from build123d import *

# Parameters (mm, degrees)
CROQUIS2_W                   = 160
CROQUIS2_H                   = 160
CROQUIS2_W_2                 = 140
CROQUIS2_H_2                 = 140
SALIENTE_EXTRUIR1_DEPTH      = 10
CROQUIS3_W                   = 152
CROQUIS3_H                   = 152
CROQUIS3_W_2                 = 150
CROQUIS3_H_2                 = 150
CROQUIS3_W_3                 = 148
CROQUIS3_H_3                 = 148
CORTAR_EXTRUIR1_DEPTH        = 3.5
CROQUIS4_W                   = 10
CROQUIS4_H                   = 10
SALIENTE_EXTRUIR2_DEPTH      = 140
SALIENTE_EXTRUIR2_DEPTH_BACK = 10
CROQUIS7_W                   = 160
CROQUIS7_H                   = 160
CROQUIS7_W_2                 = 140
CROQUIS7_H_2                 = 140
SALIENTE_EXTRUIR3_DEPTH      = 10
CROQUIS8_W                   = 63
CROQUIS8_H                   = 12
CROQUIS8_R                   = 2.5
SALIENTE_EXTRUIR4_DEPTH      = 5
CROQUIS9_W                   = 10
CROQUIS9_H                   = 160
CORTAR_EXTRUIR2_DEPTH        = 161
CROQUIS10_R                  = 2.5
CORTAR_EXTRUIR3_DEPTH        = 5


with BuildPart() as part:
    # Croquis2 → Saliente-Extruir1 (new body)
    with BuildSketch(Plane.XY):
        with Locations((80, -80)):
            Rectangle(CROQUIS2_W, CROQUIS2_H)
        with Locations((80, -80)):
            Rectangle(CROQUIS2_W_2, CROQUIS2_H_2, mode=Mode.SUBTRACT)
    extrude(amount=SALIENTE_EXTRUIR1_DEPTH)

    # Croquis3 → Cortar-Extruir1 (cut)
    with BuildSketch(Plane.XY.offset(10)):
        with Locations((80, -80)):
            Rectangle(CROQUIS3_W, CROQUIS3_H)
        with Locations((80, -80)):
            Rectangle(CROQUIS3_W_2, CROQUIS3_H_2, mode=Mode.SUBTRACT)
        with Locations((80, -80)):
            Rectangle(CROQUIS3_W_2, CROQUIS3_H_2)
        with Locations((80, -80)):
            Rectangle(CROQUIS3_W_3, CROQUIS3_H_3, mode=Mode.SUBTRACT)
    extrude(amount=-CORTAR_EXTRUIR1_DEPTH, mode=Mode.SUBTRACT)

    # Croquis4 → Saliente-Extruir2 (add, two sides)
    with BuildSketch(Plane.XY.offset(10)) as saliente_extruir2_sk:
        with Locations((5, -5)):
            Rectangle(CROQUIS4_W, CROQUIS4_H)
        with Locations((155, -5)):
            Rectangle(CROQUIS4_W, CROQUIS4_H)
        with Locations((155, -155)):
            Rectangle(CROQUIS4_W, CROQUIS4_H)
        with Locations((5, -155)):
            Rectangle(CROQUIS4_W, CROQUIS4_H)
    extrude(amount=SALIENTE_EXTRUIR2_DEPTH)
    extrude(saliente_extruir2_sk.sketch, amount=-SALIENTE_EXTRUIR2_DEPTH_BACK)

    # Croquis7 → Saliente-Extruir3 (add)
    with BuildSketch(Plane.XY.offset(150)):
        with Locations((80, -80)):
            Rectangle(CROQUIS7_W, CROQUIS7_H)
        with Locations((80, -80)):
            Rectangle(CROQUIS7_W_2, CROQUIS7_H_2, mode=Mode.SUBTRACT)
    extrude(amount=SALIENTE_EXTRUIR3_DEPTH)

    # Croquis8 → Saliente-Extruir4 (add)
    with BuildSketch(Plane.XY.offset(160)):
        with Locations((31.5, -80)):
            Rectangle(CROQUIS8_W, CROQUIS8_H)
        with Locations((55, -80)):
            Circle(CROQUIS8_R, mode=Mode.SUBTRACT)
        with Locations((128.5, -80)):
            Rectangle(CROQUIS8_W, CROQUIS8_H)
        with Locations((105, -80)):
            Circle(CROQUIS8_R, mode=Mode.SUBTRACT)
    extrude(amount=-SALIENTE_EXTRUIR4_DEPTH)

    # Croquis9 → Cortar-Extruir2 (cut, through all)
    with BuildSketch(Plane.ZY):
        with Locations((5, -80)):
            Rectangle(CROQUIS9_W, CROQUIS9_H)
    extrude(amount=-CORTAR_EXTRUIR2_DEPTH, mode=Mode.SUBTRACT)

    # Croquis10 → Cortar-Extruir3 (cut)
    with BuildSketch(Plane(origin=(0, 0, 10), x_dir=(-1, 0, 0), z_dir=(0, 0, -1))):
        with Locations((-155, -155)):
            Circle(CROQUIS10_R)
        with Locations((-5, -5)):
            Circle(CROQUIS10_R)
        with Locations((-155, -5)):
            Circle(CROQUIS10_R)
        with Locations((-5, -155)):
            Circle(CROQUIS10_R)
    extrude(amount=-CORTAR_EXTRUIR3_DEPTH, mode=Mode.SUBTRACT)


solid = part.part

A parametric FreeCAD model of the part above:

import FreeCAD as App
import Part
import Sketcher
Q = App.Units.Quantity

doc = App.newDocument("Part")
body = doc.addObject("PartDesign::Body", "Body")

sketch1 = doc.addObject("Sketcher::SketchObject", "Sketch")
body.addObject(sketch1)
sketch1.AttachmentSupport = (doc.XY_Plane, [""])
sketch1.MapMode = "FlatFace"
sketch1.addGeometry([
    Part.LineSegment(App.Vector(0, 0, 0), App.Vector(0, -160, 0)),
    Part.LineSegment(App.Vector(0, -160, 0), App.Vector(160, -160, 0)),
    Part.LineSegment(App.Vector(160, -160, 0), App.Vector(160, 0, 0)),
    Part.LineSegment(App.Vector(160, 0, 0), App.Vector(0, 0, 0)),
    Part.LineSegment(App.Vector(150, -150, 0), App.Vector(10, -150, 0)),
    Part.LineSegment(App.Vector(10, -150, 0), App.Vector(10, -10, 0)),
    Part.LineSegment(App.Vector(10, -10, 0), App.Vector(150, -10, 0)),
    Part.LineSegment(App.Vector(150, -10, 0), App.Vector(150, -150, 0)),
], False)
sketch1.addConstraint([
    Sketcher.Constraint("Coincident", 0, 2, 1, 1),
    Sketcher.Constraint("Coincident", 1, 2, 2, 1),
    Sketcher.Constraint("Coincident", 2, 2, 3, 1),
    Sketcher.Constraint("Coincident", 3, 2, 0, 1),
    Sketcher.Constraint("Coincident", 4, 2, 5, 1),
    Sketcher.Constraint("Coincident", 5, 2, 6, 1),
    Sketcher.Constraint("Coincident", 6, 2, 7, 1),
    Sketcher.Constraint("Coincident", 7, 2, 4, 1),
    Sketcher.Constraint("Vertical", 0),
    Sketcher.Constraint("Horizontal", 1),
    Sketcher.Constraint("Vertical", 2),
    Sketcher.Constraint("Horizontal", 3),
    Sketcher.Constraint("Horizontal", 4),
    Sketcher.Constraint("Vertical", 5),
    Sketcher.Constraint("Horizontal", 6),
    Sketcher.Constraint("Vertical", 7),
    Sketcher.Constraint("Coincident", 3, 2, -1, 1),
    Sketcher.Constraint("Equal", 3, 0),
    Sketcher.Constraint("Equal", 6, 5),
    Sketcher.Constraint("DistanceX", 1, 1, 1, 2, Q("160 mm")),
    Sketcher.Constraint("DistanceX", 4, 2, 4, 1, Q("140 mm")),
    Sketcher.Constraint("DistanceX", -1, 1, 4, 2, Q("10 mm")),
    Sketcher.Constraint("DistanceY", 4, 2, -1, 1, Q("150 mm")),
])
pad1 = doc.addObject("PartDesign::Pad", "Pad")
body.addObject(pad1)
pad1.Profile = sketch1
pad1.Length = 10

sketch2 = doc.addObject("Sketcher::SketchObject", "Sketch001")
body.addObject(sketch2)
sketch2.AttachmentSupport = (doc.XY_Plane, [""])
sketch2.MapMode = "FlatFace"
sketch2.AttachmentOffset = App.Placement(App.Vector(0, 0, 10), App.Rotation())
sketch2.addGeometry([
    Part.LineSegment(App.Vector(4, -4, 0), App.Vector(4, -156, 0)),
    Part.LineSegment(App.Vector(4, -156, 0), App.Vector(156, -156, 0)),
    Part.LineSegment(App.Vector(156, -156, 0), App.Vector(156, -4, 0)),
    Part.LineSegment(App.Vector(156, -4, 0), App.Vector(4, -4, 0)),
    Part.LineSegment(App.Vector(154, -154, 0), App.Vector(6, -154, 0)),
    Part.LineSegment(App.Vector(6, -154, 0), App.Vector(6, -6, 0)),
    Part.LineSegment(App.Vector(6, -6, 0), App.Vector(154, -6, 0)),
    Part.LineSegment(App.Vector(154, -6, 0), App.Vector(154, -154, 0)),
], False)
sketch2.addConstraint([
    Sketcher.Constraint("Coincident", 0, 2, 1, 1),
    Sketcher.Constraint("Coincident", 1, 2, 2, 1),
    Sketcher.Constraint("Coincident", 2, 2, 3, 1),
    Sketcher.Constraint("Coincident", 3, 2, 0, 1),
    Sketcher.Constraint("Coincident", 4, 2, 5, 1),
    Sketcher.Constraint("Coincident", 5, 2, 6, 1),
    Sketcher.Constraint("Coincident", 6, 2, 7, 1),
    Sketcher.Constraint("Coincident", 7, 2, 4, 1),
    Sketcher.Constraint("Vertical", 0),
    Sketcher.Constraint("Horizontal", 1),
    Sketcher.Constraint("Vertical", 2),
    Sketcher.Constraint("Horizontal", 3),
    Sketcher.Constraint("Horizontal", 4),
    Sketcher.Constraint("Vertical", 5),
    Sketcher.Constraint("Horizontal", 6),
    Sketcher.Constraint("Vertical", 7),
    Sketcher.Constraint("Equal", 3, 0),
    Sketcher.Constraint("Equal", 6, 5),
    Sketcher.Constraint("DistanceX", 1, 1, 1, 2, Q("152 mm")),
    Sketcher.Constraint("DistanceX", 4, 2, 4, 1, Q("148 mm")),
    Sketcher.Constraint("DistanceX", -1, 1, 0, 2, Q("4 mm")),
    Sketcher.Constraint("DistanceY", 0, 2, -1, 1, Q("156 mm")),
    Sketcher.Constraint("DistanceX", -1, 1, 4, 2, Q("6 mm")),
    Sketcher.Constraint("DistanceY", 4, 2, -1, 1, Q("154 mm")),
])
pocket1 = doc.addObject("PartDesign::Pocket", "Pocket")
body.addObject(pocket1)
pocket1.Profile = sketch2
pocket1.Length = 3.5

sketch3 = doc.addObject("Sketcher::SketchObject", "Sketch002")
body.addObject(sketch3)
sketch3.AttachmentSupport = (doc.XY_Plane, [""])
sketch3.MapMode = "FlatFace"
sketch3.AttachmentOffset = App.Placement(App.Vector(0, 0, 10), App.Rotation())
sketch3.addGeometry([
    Part.LineSegment(App.Vector(0, 0, 0), App.Vector(0, -10, 0)),
    Part.LineSegment(App.Vector(0, -10, 0), App.Vector(10, -10, 0)),
    Part.LineSegment(App.Vector(10, -10, 0), App.Vector(10, 0, 0)),
    Part.LineSegment(App.Vector(10, 0, 0), App.Vector(0, 0, 0)),
    Part.LineSegment(App.Vector(150, 0, 0), App.Vector(150, -10, 0)),
    Part.LineSegment(App.Vector(150, -10, 0), App.Vector(160, -10, 0)),
    Part.LineSegment(App.Vector(160, -10, 0), App.Vector(160, 0, 0)),
    Part.LineSegment(App.Vector(160, 0, 0), App.Vector(150, 0, 0)),
    Part.LineSegment(App.Vector(150, -150, 0), App.Vector(150, -160, 0)),
    Part.LineSegment(App.Vector(150, -160, 0), App.Vector(160, -160, 0)),
    Part.LineSegment(App.Vector(160, -160, 0), App.Vector(160, -150, 0)),
    Part.LineSegment(App.Vector(160, -150, 0), App.Vector(150, -150, 0)),
    Part.LineSegment(App.Vector(0, -150, 0), App.Vector(0, -160, 0)),
    Part.LineSegment(App.Vector(0, -160, 0), App.Vector(10, -160, 0)),
    Part.LineSegment(App.Vector(10, -160, 0), App.Vector(10, -150, 0)),
    Part.LineSegment(App.Vector(10, -150, 0), App.Vector(0, -150, 0)),
], False)
sketch3.addConstraint([
    Sketcher.Constraint("Coincident", 0, 2, 1, 1),
    Sketcher.Constraint("Coincident", 1, 2, 2, 1),
    Sketcher.Constraint("Coincident", 2, 2, 3, 1),
    Sketcher.Constraint("Coincident", 3, 2, 0, 1),
    Sketcher.Constraint("Coincident", 4, 2, 5, 1),
    Sketcher.Constraint("Coincident", 5, 2, 6, 1),
    Sketcher.Constraint("Coincident", 6, 2, 7, 1),
    Sketcher.Constraint("Coincident", 7, 2, 4, 1),
    Sketcher.Constraint("Coincident", 8, 2, 9, 1),
    Sketcher.Constraint("Coincident", 9, 2, 10, 1),
    Sketcher.Constraint("Coincident", 10, 2, 11, 1),
    Sketcher.Constraint("Coincident", 11, 2, 8, 1),
    Sketcher.Constraint("Coincident", 12, 2, 13, 1),
    Sketcher.Constraint("Coincident", 13, 2, 14, 1),
    Sketcher.Constraint("Coincident", 14, 2, 15, 1),
    Sketcher.Constraint("Coincident", 15, 2, 12, 1),
    Sketcher.Constraint("Vertical", 0),
    Sketcher.Constraint("Horizontal", 1),
    Sketcher.Constraint("Vertical", 2),
    Sketcher.Constraint("Horizontal", 3),
    Sketcher.Constraint("Vertical", 4),
    Sketcher.Constraint("Horizontal", 5),
    Sketcher.Constraint("Vertical", 6),
    Sketcher.Constraint("Horizontal", 7),
    Sketcher.Constraint("Vertical", 8),
    Sketcher.Constraint("Horizontal", 9),
    Sketcher.Constraint("Vertical", 10),
    Sketcher.Constraint("Horizontal", 11),
    Sketcher.Constraint("Vertical", 12),
    Sketcher.Constraint("Horizontal", 13),
    Sketcher.Constraint("Vertical", 14),
    Sketcher.Constraint("Horizontal", 15),
    Sketcher.Constraint("Coincident", 3, 2, -1, 1),
    Sketcher.Constraint("PointOnObject", 6, 2, -1),
    Sketcher.Constraint("PointOnObject", 12, 2, -2),
    Sketcher.Constraint("Horizontal", 1, 2, 4, 2),
    Sketcher.Constraint("Horizontal", 9, 2, 12, 2),
    Sketcher.Constraint("Horizontal", 11, 2, 14, 2),
    Sketcher.Constraint("Vertical", 7, 2, 8, 2),
    Sketcher.Constraint("Vertical", 6, 2, 9, 2),
    Sketcher.Constraint("Vertical", 2, 2, 13, 2),
    Sketcher.Constraint("Equal", 3, 5),
    Sketcher.Constraint("Equal", 15, 0),
    Sketcher.Constraint("Equal", 6, 8),
    Sketcher.Constraint("DistanceX", 1, 1, 1, 2, Q("10 mm")),
    Sketcher.Constraint("DistanceX", -1, 1, 4, 2, Q("150 mm")),
    Sketcher.Constraint("DistanceY", 8, 2, -1, 1, Q("160 mm")),
])
pad2 = doc.addObject("PartDesign::Pad", "Pad001")
body.addObject(pad2)
pad2.Profile = sketch3
pad2.Type = "TwoLengths"
pad2.Length = 140
pad2.Length2 = 10

sketch4 = doc.addObject("Sketcher::SketchObject", "Sketch003")
body.addObject(sketch4)
sketch4.AttachmentSupport = (doc.XY_Plane, [""])
sketch4.MapMode = "FlatFace"
sketch4.AttachmentOffset = App.Placement(App.Vector(0, 0, 150), App.Rotation())
sketch4.addGeometry([
    Part.LineSegment(App.Vector(0, 0, 0), App.Vector(0, -160, 0)),
    Part.LineSegment(App.Vector(0, -160, 0), App.Vector(160, -160, 0)),
    Part.LineSegment(App.Vector(160, -160, 0), App.Vector(160, 0, 0)),
    Part.LineSegment(App.Vector(160, 0, 0), App.Vector(0, 0, 0)),
    Part.LineSegment(App.Vector(150, -150, 0), App.Vector(10, -150, 0)),
    Part.LineSegment(App.Vector(10, -150, 0), App.Vector(10, -10, 0)),
    Part.LineSegment(App.Vector(10, -10, 0), App.Vector(150, -10, 0)),
    Part.LineSegment(App.Vector(150, -10, 0), App.Vector(150, -150, 0)),
], False)
sketch4.addConstraint([
    Sketcher.Constraint("Coincident", 0, 2, 1, 1),
    Sketcher.Constraint("Coincident", 1, 2, 2, 1),
    Sketcher.Constraint("Coincident", 2, 2, 3, 1),
    Sketcher.Constraint("Coincident", 3, 2, 0, 1),
    Sketcher.Constraint("Coincident", 4, 2, 5, 1),
    Sketcher.Constraint("Coincident", 5, 2, 6, 1),
    Sketcher.Constraint("Coincident", 6, 2, 7, 1),
    Sketcher.Constraint("Coincident", 7, 2, 4, 1),
    Sketcher.Constraint("Vertical", 0),
    Sketcher.Constraint("Horizontal", 1),
    Sketcher.Constraint("Vertical", 2),
    Sketcher.Constraint("Horizontal", 3),
    Sketcher.Constraint("Horizontal", 4),
    Sketcher.Constraint("Vertical", 5),
    Sketcher.Constraint("Horizontal", 6),
    Sketcher.Constraint("Vertical", 7),
    Sketcher.Constraint("Coincident", 3, 2, -1, 1),
    Sketcher.Constraint("Equal", 3, 0),
    Sketcher.Constraint("Equal", 6, 5),
    Sketcher.Constraint("DistanceX", 1, 1, 1, 2, Q("160 mm")),
    Sketcher.Constraint("DistanceX", 4, 2, 4, 1, Q("140 mm")),
    Sketcher.Constraint("DistanceX", -1, 1, 4, 2, Q("10 mm")),
    Sketcher.Constraint("DistanceY", 4, 2, -1, 1, Q("150 mm")),
])
pad3 = doc.addObject("PartDesign::Pad", "Pad002")
body.addObject(pad3)
pad3.Profile = sketch4
pad3.Length = 10

sketch5 = doc.addObject("Sketcher::SketchObject", "Sketch004")
body.addObject(sketch5)
sketch5.AttachmentSupport = (doc.XY_Plane, [""])
sketch5.MapMode = "FlatFace"
sketch5.AttachmentOffset = App.Placement(App.Vector(0, 0, 160), App.Rotation())
sketch5.addGeometry([
    Part.LineSegment(App.Vector(0, -74, 0), App.Vector(0, -86, 0)),
    Part.LineSegment(App.Vector(0, -86, 0), App.Vector(63, -86, 0)),
    Part.LineSegment(App.Vector(63, -86, 0), App.Vector(63, -74, 0)),
    Part.LineSegment(App.Vector(63, -74, 0), App.Vector(0, -74, 0)),
    Part.Circle(App.Vector(55, -80, 0), App.Vector(0, 0, 1), 2.5),
    Part.LineSegment(App.Vector(97, -74, 0), App.Vector(97, -86, 0)),
    Part.LineSegment(App.Vector(97, -86, 0), App.Vector(160, -86, 0)),
    Part.LineSegment(App.Vector(160, -86, 0), App.Vector(160, -74, 0)),
    Part.LineSegment(App.Vector(160, -74, 0), App.Vector(97, -74, 0)),
    Part.Circle(App.Vector(105, -80, 0), App.Vector(0, 0, 1), 2.5),
], False)
sketch5.addConstraint([
    Sketcher.Constraint("Coincident", 0, 2, 1, 1),
    Sketcher.Constraint("Coincident", 1, 2, 2, 1),
    Sketcher.Constraint("Coincident", 2, 2, 3, 1),
    Sketcher.Constraint("Coincident", 3, 2, 0, 1),
    Sketcher.Constraint("Coincident", 5, 2, 6, 1),
    Sketcher.Constraint("Coincident", 6, 2, 7, 1),
    Sketcher.Constraint("Coincident", 7, 2, 8, 1),
    Sketcher.Constraint("Coincident", 8, 2, 5, 1),
    Sketcher.Constraint("Vertical", 0),
    Sketcher.Constraint("Horizontal", 1),
    Sketcher.Constraint("Vertical", 2),
    Sketcher.Constraint("Horizontal", 3),
    Sketcher.Constraint("Vertical", 5),
    Sketcher.Constraint("Horizontal", 6),
    Sketcher.Constraint("Vertical", 7),
    Sketcher.Constraint("Horizontal", 8),
    Sketcher.Constraint("Equal", 4, 9),
    Sketcher.Constraint("PointOnObject", 0, 2, -2),
    Sketcher.Constraint("Horizontal", 4, 3, 9, 3),
    Sketcher.Constraint("Horizontal", 1, 2, 5, 2),
    Sketcher.Constraint("Horizontal", 3, 2, 7, 2),
    Sketcher.Constraint("Equal", 3, 6),
    Sketcher.Constraint("Diameter", 4, Q("5 mm")),
    Sketcher.Constraint("DistanceX", 1, 1, 1, 2, Q("63 mm")),
    Sketcher.Constraint("DistanceY", 0, 2, 0, 1, Q("12 mm")),
    Sketcher.Constraint("DistanceX", -1, 1, 4, 3, Q("55 mm")),
    Sketcher.Constraint("DistanceY", 4, 3, -1, 1, Q("80 mm")),
    Sketcher.Constraint("DistanceX", -1, 1, 9, 3, Q("105 mm")),
    Sketcher.Constraint("DistanceY", 0, 2, -1, 1, Q("86 mm")),
    Sketcher.Constraint("DistanceX", -1, 1, 5, 2, Q("97 mm")),
])
pad4 = doc.addObject("PartDesign::Pad", "Pad003")
body.addObject(pad4)
pad4.Profile = sketch5
pad4.Length = 5
pad4.Reversed = True

sketch6 = doc.addObject("Sketcher::SketchObject", "Sketch005")
body.addObject(sketch6)
sketch6.AttachmentSupport = (doc.YZ_Plane, [""])
sketch6.MapMode = "FlatFace"
sketch6.addGeometry([
    Part.LineSegment(App.Vector(0, 0, 0), App.Vector(-160, 0, 0)),
    Part.LineSegment(App.Vector(-160, 0, 0), App.Vector(-160, 10, 0)),
    Part.LineSegment(App.Vector(-160, 10, 0), App.Vector(0, 10, 0)),
    Part.LineSegment(App.Vector(0, 10, 0), App.Vector(0, 0, 0)),
], False)
sketch6.addConstraint([
    Sketcher.Constraint("Coincident", 0, 2, 1, 1),
    Sketcher.Constraint("Coincident", 1, 2, 2, 1),
    Sketcher.Constraint("Coincident", 2, 2, 3, 1),
    Sketcher.Constraint("Coincident", 3, 2, 0, 1),
    Sketcher.Constraint("Horizontal", 0),
    Sketcher.Constraint("Vertical", 1),
    Sketcher.Constraint("Horizontal", 2),
    Sketcher.Constraint("Vertical", 3),
    Sketcher.Constraint("Coincident", 3, 2, -1, 1),
    Sketcher.Constraint("DistanceX", 0, 2, 0, 1, Q("160 mm")),
    Sketcher.Constraint("DistanceY", 1, 1, 1, 2, Q("10 mm")),
])
pocket2 = doc.addObject("PartDesign::Pocket", "Pocket001")
body.addObject(pocket2)
pocket2.Profile = sketch6
pocket2.Type = "ThroughAll"
pocket2.Reversed = True

sketch7 = doc.addObject("Sketcher::SketchObject", "Sketch006")
body.addObject(sketch7)
sketch7.AttachmentSupport = (doc.XY_Plane, [""])
sketch7.MapMode = "FlatFace"
sketch7.AttachmentOffset = App.Placement(App.Vector(0, 0, 10), App.Rotation())
sketch7.addGeometry([
    Part.Circle(App.Vector(155, -155, 0), App.Vector(0, 0, 1), 2.5),
    Part.Circle(App.Vector(5, -5, 0), App.Vector(0, 0, 1), 2.5),
    Part.Circle(App.Vector(155, -5, 0), App.Vector(0, 0, 1), 2.5),
    Part.Circle(App.Vector(5, -155, 0), App.Vector(0, 0, 1), 2.5),
], False)
sketch7.addConstraint([
    Sketcher.Constraint("Equal", 0, 1),
    Sketcher.Constraint("Equal", 1, 2),
    Sketcher.Constraint("Equal", 2, 3),
    Sketcher.Constraint("Horizontal", 1, 3, 2, 3),
    Sketcher.Constraint("Horizontal", 0, 3, 3, 3),
    Sketcher.Constraint("Vertical", 0, 3, 2, 3),
    Sketcher.Constraint("Vertical", 1, 3, 3, 3),
    Sketcher.Constraint("Diameter", 0, Q("5 mm")),
    Sketcher.Constraint("DistanceX", -1, 1, 0, 3, Q("155 mm")),
    Sketcher.Constraint("DistanceY", 0, 3, -1, 1, Q("155 mm")),
    Sketcher.Constraint("DistanceX", -1, 1, 1, 3, Q("5 mm")),
    Sketcher.Constraint("DistanceY", 1, 3, -1, 1, Q("5 mm")),
])
pocket3 = doc.addObject("PartDesign::Pocket", "Pocket002")
body.addObject(pocket3)
pocket3.Profile = sketch7
pocket3.Length = 5
pocket3.Reversed = True

doc.recompute()
